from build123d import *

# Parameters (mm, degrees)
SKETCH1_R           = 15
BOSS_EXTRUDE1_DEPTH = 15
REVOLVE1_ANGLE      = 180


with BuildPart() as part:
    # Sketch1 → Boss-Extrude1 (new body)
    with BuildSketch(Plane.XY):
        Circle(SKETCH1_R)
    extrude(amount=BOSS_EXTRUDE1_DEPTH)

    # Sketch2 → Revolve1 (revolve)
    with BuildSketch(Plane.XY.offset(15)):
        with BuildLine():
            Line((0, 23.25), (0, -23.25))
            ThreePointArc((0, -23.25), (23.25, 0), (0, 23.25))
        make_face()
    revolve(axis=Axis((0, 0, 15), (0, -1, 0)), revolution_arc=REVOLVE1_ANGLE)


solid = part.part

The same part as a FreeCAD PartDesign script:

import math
import FreeCAD as App
import Part
import Sketcher

doc = App.newDocument("Part")
params = doc.addObject("Spreadsheet::Sheet", "Params")
for row, (alias, value) in enumerate([
    ("sketch1_diameter", "30 mm"),
    ("pad1_length", "15 mm"),
    ("sketch2_radius", "23.25 mm"),
    ("revolution_angle", "180 deg"),
], start=1):
    params.set(f"A{row}", alias)
    params.set(f"B{row}", "=" + value)
    params.setAlias(f"B{row}", alias)

body = doc.addObject("PartDesign::Body", "Body")

sketch1 = doc.addObject("Sketcher::SketchObject", "Sketch")
body.addObject(sketch1)
sketch1.AttachmentSupport = (doc.XY_Plane, [""])
sketch1.MapMode = "FlatFace"
sketch1.addGeometry(Part.Circle(App.Vector(0, 0, 0), App.Vector(0, 0, 1), 15), False)
sketch1.addConstraint(Sketcher.Constraint("Coincident", 0, 3, -1, 1))
sketch1.addConstraint(Sketcher.Constraint("Diameter", 0, 30.0))
sketch1.setExpression("Constraints[1]", "Params.sketch1_diameter")
pad1 = doc.addObject("PartDesign::Pad", "Pad")
body.addObject(pad1)
pad1.Profile = sketch1
pad1.setExpression("Length", "Params.pad1_length")

sketch2 = doc.addObject("Sketcher::SketchObject", "Sketch001")
body.addObject(sketch2)
sketch2.AttachmentSupport = (doc.XY_Plane, [""])
sketch2.MapMode = "FlatFace"
sketch2.AttachmentOffset = App.Placement(App.Vector(0, 0, 15), App.Rotation())
sketch2.addGeometry(Part.LineSegment(App.Vector(0, 23.25, 0), App.Vector(0, -23.25, 0)), False)
sketch2.addGeometry(Part.ArcOfCircle(Part.Circle(App.Vector(0, 0, 0), App.Vector(0, 0, 1), 23.25), math.radians(-90), math.radians(90)), False)
sketch2.addConstraint(Sketcher.Constraint("Coincident", 0, 1, 1, 2))
sketch2.addConstraint(Sketcher.Constraint("Coincident", 1, 1, 0, 2))
sketch2.addConstraint(Sketcher.Constraint("Vertical", 0))
sketch2.addConstraint(Sketcher.Constraint("Coincident", 1, 3, -1, 1))
sketch2.addConstraint(Sketcher.Constraint("PointOnObject", 0, 1, -2))
sketch2.addConstraint(Sketcher.Constraint("Radius", 1, 23.25))
sketch2.setExpression("Constraints[5]", "Params.sketch2_radius")
revolution = doc.addObject("PartDesign::Revolution", "Revolution")
body.addObject(revolution)
revolution.Profile = sketch2
revolution.ReferenceAxis = (sketch2, ["V_Axis"])
revolution.setExpression("Angle", "Params.revolution_angle")
revolution.Reversed = True

doc.recompute()
